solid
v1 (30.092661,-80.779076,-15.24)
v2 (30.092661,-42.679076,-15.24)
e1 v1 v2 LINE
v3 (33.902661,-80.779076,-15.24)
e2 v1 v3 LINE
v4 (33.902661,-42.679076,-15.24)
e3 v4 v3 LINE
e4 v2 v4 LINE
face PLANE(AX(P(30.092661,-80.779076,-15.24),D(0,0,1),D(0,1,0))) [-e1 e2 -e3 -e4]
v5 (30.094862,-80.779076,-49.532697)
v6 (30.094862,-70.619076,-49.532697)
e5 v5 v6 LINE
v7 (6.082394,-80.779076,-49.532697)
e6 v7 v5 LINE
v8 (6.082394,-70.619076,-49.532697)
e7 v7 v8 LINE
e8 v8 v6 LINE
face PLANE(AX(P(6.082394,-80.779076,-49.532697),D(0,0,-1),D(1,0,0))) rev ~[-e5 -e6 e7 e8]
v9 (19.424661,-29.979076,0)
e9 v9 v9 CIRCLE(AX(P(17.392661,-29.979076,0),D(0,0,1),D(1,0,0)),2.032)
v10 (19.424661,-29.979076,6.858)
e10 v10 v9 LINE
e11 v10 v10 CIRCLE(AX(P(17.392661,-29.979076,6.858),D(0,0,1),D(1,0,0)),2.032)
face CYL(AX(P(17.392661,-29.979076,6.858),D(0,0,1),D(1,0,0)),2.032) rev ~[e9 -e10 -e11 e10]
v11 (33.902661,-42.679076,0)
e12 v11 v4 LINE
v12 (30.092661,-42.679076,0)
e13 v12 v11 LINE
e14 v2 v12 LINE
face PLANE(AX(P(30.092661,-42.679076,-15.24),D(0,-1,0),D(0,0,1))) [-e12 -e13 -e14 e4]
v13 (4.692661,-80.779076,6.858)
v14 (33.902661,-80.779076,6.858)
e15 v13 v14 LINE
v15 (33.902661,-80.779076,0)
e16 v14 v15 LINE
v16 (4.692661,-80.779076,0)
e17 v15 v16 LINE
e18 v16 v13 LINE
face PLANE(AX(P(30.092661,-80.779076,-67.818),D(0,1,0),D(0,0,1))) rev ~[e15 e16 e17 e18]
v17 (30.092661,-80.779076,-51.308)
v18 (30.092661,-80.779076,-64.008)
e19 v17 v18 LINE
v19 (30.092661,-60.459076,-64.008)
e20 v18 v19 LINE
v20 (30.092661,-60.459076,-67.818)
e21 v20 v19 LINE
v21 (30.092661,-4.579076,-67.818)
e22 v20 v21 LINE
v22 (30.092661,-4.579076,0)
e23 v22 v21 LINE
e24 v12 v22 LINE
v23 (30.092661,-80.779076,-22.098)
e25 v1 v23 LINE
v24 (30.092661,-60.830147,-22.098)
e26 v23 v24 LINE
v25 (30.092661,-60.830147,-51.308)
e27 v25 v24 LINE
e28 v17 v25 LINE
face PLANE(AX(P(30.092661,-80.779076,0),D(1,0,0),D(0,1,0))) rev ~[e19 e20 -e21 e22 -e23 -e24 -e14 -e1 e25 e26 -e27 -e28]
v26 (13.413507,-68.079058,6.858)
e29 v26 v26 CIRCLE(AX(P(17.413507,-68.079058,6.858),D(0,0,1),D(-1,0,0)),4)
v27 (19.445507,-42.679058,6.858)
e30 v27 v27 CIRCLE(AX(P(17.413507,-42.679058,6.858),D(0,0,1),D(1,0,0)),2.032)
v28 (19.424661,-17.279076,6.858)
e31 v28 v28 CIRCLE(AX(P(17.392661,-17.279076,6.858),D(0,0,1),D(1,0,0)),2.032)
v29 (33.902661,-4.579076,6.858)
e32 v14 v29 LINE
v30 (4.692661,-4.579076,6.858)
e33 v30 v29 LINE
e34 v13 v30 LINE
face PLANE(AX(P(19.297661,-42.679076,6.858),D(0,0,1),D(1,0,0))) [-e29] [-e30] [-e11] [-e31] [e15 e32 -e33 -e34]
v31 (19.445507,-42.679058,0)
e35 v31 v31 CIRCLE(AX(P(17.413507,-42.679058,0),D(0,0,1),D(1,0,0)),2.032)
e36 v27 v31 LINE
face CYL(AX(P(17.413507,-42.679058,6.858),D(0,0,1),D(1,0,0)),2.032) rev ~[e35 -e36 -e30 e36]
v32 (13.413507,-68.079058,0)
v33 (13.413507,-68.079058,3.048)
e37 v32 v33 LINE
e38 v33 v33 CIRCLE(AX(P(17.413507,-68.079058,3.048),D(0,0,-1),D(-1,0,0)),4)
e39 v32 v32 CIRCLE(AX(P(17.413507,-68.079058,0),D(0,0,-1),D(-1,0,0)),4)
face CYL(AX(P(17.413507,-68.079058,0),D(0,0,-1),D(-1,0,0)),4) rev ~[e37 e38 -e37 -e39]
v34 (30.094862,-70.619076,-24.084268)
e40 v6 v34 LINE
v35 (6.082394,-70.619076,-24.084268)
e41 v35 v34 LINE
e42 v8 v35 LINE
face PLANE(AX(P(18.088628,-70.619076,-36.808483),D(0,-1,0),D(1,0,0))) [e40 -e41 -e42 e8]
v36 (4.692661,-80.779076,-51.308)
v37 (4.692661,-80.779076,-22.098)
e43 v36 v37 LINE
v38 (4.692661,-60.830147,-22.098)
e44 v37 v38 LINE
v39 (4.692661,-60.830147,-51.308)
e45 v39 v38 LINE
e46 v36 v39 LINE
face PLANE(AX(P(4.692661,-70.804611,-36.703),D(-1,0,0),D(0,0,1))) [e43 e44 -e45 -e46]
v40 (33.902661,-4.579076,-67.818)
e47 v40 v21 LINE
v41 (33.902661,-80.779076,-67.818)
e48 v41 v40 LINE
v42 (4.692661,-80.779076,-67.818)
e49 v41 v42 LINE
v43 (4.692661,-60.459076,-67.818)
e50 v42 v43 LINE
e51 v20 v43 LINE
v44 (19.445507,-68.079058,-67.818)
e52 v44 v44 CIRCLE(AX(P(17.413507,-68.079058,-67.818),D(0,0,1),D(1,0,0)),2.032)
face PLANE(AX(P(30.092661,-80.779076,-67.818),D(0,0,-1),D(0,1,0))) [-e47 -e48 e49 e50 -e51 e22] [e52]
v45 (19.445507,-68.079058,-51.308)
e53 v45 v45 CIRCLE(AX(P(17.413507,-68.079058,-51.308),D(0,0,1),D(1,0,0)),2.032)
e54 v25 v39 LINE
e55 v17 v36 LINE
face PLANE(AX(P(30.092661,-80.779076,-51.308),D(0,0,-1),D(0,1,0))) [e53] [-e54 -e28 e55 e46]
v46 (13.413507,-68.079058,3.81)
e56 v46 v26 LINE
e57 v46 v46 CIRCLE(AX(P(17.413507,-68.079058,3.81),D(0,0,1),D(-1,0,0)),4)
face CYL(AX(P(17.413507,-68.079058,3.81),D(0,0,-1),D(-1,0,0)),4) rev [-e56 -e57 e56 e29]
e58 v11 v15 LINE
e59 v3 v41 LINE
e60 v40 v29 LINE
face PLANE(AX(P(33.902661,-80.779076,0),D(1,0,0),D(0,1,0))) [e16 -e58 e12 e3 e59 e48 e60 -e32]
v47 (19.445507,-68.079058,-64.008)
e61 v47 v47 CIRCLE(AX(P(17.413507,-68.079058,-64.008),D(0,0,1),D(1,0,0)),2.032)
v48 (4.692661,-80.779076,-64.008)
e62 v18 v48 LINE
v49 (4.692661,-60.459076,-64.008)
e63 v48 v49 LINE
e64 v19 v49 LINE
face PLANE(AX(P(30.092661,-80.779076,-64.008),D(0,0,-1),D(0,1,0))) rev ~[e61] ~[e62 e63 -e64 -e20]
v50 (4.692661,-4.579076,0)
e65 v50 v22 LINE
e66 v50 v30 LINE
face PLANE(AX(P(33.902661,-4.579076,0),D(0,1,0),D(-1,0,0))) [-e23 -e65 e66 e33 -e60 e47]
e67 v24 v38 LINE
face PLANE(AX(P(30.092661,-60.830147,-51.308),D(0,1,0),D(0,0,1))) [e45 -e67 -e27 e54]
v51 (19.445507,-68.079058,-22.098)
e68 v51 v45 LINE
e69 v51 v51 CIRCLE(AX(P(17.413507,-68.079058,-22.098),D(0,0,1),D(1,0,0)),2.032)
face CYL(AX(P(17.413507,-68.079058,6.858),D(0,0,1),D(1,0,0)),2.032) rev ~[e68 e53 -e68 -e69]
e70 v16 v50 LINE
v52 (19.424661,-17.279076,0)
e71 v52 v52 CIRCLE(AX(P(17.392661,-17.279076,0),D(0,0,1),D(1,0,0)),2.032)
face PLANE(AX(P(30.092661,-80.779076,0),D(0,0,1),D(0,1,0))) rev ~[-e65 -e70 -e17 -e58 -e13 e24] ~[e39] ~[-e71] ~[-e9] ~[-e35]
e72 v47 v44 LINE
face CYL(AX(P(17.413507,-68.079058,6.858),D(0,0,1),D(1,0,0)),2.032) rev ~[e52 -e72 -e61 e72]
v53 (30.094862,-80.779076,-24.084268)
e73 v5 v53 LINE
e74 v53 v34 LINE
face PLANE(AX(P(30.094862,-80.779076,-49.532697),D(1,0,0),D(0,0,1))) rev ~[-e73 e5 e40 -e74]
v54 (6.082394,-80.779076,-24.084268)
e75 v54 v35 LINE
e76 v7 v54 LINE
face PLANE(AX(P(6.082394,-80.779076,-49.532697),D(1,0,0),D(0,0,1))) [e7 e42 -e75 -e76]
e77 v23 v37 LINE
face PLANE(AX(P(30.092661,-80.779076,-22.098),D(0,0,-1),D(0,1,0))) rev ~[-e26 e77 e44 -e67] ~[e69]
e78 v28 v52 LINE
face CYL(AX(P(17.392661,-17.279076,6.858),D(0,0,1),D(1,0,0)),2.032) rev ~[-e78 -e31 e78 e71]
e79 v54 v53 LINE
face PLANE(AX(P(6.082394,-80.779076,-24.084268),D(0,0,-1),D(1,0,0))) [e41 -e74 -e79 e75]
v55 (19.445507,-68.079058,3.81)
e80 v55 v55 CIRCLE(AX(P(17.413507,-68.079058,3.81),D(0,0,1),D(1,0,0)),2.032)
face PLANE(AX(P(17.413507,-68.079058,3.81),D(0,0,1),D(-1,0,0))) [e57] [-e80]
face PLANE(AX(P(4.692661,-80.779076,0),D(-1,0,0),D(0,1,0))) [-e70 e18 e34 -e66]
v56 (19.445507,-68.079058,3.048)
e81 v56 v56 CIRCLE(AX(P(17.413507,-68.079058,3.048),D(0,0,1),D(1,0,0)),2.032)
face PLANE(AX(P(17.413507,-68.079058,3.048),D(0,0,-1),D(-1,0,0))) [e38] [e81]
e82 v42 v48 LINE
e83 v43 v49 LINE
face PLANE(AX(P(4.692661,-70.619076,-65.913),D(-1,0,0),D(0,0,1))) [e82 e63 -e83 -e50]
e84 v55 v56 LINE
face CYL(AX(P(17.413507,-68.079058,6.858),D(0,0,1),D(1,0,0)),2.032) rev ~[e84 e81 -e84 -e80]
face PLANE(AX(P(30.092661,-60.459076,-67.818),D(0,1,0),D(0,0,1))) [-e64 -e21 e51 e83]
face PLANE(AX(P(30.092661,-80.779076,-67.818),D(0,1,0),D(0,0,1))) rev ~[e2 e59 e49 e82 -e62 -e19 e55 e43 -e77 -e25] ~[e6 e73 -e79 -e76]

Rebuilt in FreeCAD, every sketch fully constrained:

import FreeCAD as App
import Part
import Sketcher
from FreeCAD import Vector
Q = App.Units.Quantity

doc = App.newDocument("Part")
params = doc.addObject("Spreadsheet::Sheet", "Params")
for row, (alias, value) in enumerate([
    ("sketch1_height", "3 in"),
    ("sketch1_width", "1.15 in"),
    ("pad1_length", "0.27 in"),
    ("sketch2_diameter", "0.16 in"),
    ("pocket1_length", "1 in"),
    ("sketch3_height", "3 in"),
    ("sketch3_width", "0.15 in"),
    ("pad2_length", "2.67 in"),
    ("sketch4_width", "0.8 in"),
    ("sketch4_height", "0.15 in"),
    ("pad3_length", "1 in"),
    ("sketch5_height", "1.15 in"),
    ("pad4_length", "1 in"),
    ("sketch6_diameter", "0.16 in"),
    ("pocket3_length", "0.12 in"),
    ("pocket4_length", "0.12 in"),
    ("sketch9_width", "1.5 in"),
    ("sketch9_height", "0.6 in"),
    ("pocket6_length", "0.4 in"),
], start=1):
    params.set(f"A{row}", alias)
    params.set(f"B{row}", "=" + value)
    params.setAlias(f"B{row}", alias)

body = doc.addObject("PartDesign::Body", "Body")

sketch1 = body.newObject("Sketcher::SketchObject", "Sketch")
sketch1.AttachmentSupport = (doc.getObject("XY_Plane"), [""])
sketch1.MapMode = "FlatFace"
sketch1.addGeometry(Part.LineSegment(Vector(5, -5, 0), Vector(5, -81, 0)), False)
sketch1.addGeometry(Part.LineSegment(Vector(5, -81, 0), Vector(34, -81, 0)), False)
sketch1.addGeometry(Part.LineSegment(Vector(34, -81, 0), Vector(34, -5, 0)), False)
sketch1.addGeometry(Part.LineSegment(Vector(34, -5, 0), Vector(5, -5, 0)), False)
sketch1.addConstraint(Sketcher.Constraint("Coincident", 0, 2, 1, 1))
sketch1.addConstraint(Sketcher.Constraint("Coincident", 1, 2, 2, 1))
sketch1.addConstraint(Sketcher.Constraint("Coincident", 2, 2, 3, 1))
sketch1.addConstraint(Sketcher.Constraint("Coincident", 3, 2, 0, 1))
sketch1.addConstraint(Sketcher.Constraint("Vertical", 0))
sketch1.addConstraint(Sketcher.Constraint("Horizontal", 1))
sketch1.addConstraint(Sketcher.Constraint("Vertical", 2))
sketch1.addConstraint(Sketcher.Constraint("Horizontal", 3))
sketch1.addConstraint(Sketcher.Constraint("DistanceY", 0, 2, 0, 1, Q("3 in")))
sketch1.addConstraint(Sketcher.Constraint("DistanceX", 1, 1, 1, 2, Q("1.15 in")))
sketch1.addConstraint(Sketcher.Constraint("DistanceX", -1, 1, 0, 2, 4.692661))
sketch1.addConstraint(Sketcher.Constraint("DistanceY", 0, 2, -1, 1, 80.779076))
sketch1.setExpression("Constraints[8]", "Params.sketch1_height")
sketch1.setExpression("Constraints[9]", "Params.sketch1_width")
pad1 = body.newObject("PartDesign::Pad", "Pad")
pad1.Profile = sketch1
pad1.setExpression("Length", "Params.pad1_length")

sketch2 = body.newObject("Sketcher::SketchObject", "Sketch001")
sketch2.AttachmentSupport = (doc.getObject("XY_Plane"), [""])
sketch2.MapMode = "FlatFace"
sketch2.AttachmentOffset = App.Placement(Vector(0, 0, 0.27 * 25.4), App.Rotation())
sketch2.addGeometry(Part.Circle(Vector(17.4, -42.7, 0), Vector(0, 0, 1), 2), False)
sketch2.addGeometry(Part.Circle(Vector(17.4, -30, 0), Vector(0, 0, 1), 2), False)
sketch2.addGeometry(Part.Circle(Vector(17.4, -17.3, 0), Vector(0, 0, 1), 2), False)
sketch2.addConstraint(Sketcher.Constraint("Equal", 0, 1))
sketch2.addConstraint(Sketcher.Constraint("Equal", 1, 2))
sketch2.addConstraint(Sketcher.Constraint("Vertical", 1, 3, 2, 3))
sketch2.addConstraint(Sketcher.Constraint("Diameter", 0, Q("0.16 in")))
sketch2.addConstraint(Sketcher.Constraint("DistanceY", 1, 3, 2, 3, Q("0.5 in")))
sketch2.addConstraint(Sketcher.Constraint("DistanceY", 0, 3, -1, 1, 42.679058))
sketch2.addConstraint(Sketcher.Constraint("DistanceX", -1, 1, 1, 3, 17.392661))
sketch2.addConstraint(Sketcher.Constraint("DistanceX", -1, 1, 0, 3, 17.413507))
sketch2.addConstraint(Sketcher.Constraint("DistanceY", 1, 3, -1, 1, 29.979076))
sketch2.setExpression("Constraints[3]", "Params.sketch2_diameter")
pocket1 = body.newObject("PartDesign::Pocket", "Pocket")
pocket1.Profile = sketch2
pocket1.setExpression("Length", "Params.pocket1_length")

sketch3 = body.newObject("Sketcher::SketchObject", "Sketch002")
sketch3.AttachmentSupport = (doc.getObject("XY_Plane"), [""])
sketch3.MapMode = "FlatFace"
sketch3.addGeometry(Part.LineSegment(Vector(33.9, -4.6, 0), Vector(33.9, -80.8, 0)), False)
sketch3.addGeometry(Part.LineSegment(Vector(33.9, -80.8, 0), Vector(30.1, -80.8, 0)), False)
sketch3.addGeometry(Part.LineSegment(Vector(30.1, -80.8, 0), Vector(30.1, -4.6, 0)), False)
sketch3.addGeometry(Part.LineSegment(Vector(30.1, -4.6, 0), Vector(33.9, -4.6, 0)), False)
sketch3.addConstraint(Sketcher.Constraint("Coincident", 0, 2, 1, 1))
sketch3.addConstraint(Sketcher.Constraint("Coincident", 1, 2, 2, 1))
sketch3.addConstraint(Sketcher.Constraint("Coincident", 2, 2, 3, 1))
sketch3.addConstraint(Sketcher.Constraint("Coincident", 3, 2, 0, 1))
sketch3.addConstraint(Sketcher.Constraint("Vertical", 0))
sketch3.addConstraint(Sketcher.Constraint("Horizontal", 1))
sketch3.addConstraint(Sketcher.Constraint("Vertical", 2))
sketch3.addConstraint(Sketcher.Constraint("Horizontal", 3))
sketch3.addConstraint(Sketcher.Constraint("DistanceY", 0, 2, 0, 1, Q("3 in")))
sketch3.addConstraint(Sketcher.Constraint("DistanceX", 1, 2, 1, 1, Q("0.15 in")))
sketch3.addConstraint(Sketcher.Constraint("DistanceX", -1, 1, 0, 2, 33.902661))
sketch3.addConstraint(Sketcher.Constraint("DistanceY", 0, 2, -1, 1, 80.779076))
sketch3.setExpression("Constraints[8]", "Params.sketch3_height")
sketch3.setExpression("Constraints[9]", "Params.sketch3_width")
pad2 = body.newObject("PartDesign::Pad", "Pad001")
pad2.Profile = sketch3
pad2.setExpression("Length", "Params.pad2_length")
pad2.Reversed = True

sketch4 = body.newObject("Sketcher::SketchObject", "Sketch003")
sketch4.AttachmentSupport = (doc.getObject("YZ_Plane"), [""])
sketch4.MapMode = "FlatFace"
sketch4.AttachmentOffset = App.Placement(Vector(0, 0, 30.092661), App.Rotation())
sketch4.addGeometry(Part.LineSegment(Vector(-60.5, -67.8, 0), Vector(-80.8, -67.8, 0)), False)
sketch4.addGeometry(Part.LineSegment(Vector(-80.8, -67.8, 0), Vector(-80.8, -64, 0)), False)
sketch4.addGeometry(Part.LineSegment(Vector(-80.8, -64, 0), Vector(-60.5, -64, 0)), False)
sketch4.addGeometry(Part.LineSegment(Vector(-60.5, -64, 0), Vector(-60.5, -67.8, 0)), False)
sketch4.addConstraint(Sketcher.Constraint("Coincident", 0, 2, 1, 1))
sketch4.addConstraint(Sketcher.Constraint("Coincident", 1, 2, 2, 1))
sketch4.addConstraint(Sketcher.Constraint("Coincident", 2, 2, 3, 1))
sketch4.addConstraint(Sketcher.Constraint("Coincident", 3, 2, 0, 1))
sketch4.addConstraint(Sketcher.Constraint("Horizontal", 0))
sketch4.addConstraint(Sketcher.Constraint("Vertical", 1))
sketch4.addConstraint(Sketcher.Constraint("Horizontal", 2))
sketch4.addConstraint(Sketcher.Constraint("Vertical", 3))
sketch4.addConstraint(Sketcher.Constraint("DistanceX", 0, 2, 0, 1, Q("0.8 in")))
sketch4.addConstraint(Sketcher.Constraint("DistanceY", 1, 1, 1, 2, Q("0.15 in")))
sketch4.addConstraint(Sketcher.Constraint("DistanceY", 0, 2, -1, 1, Q("2.67 in")))
sketch4.addConstraint(Sketcher.Constraint("DistanceX", 0, 2, -1, 1, 80.779076))
sketch4.setExpression("Constraints[8]", "Params.sketch4_width")
sketch4.setExpression("Constraints[9]", "Params.sketch4_height")
pad3 = body.newObject("PartDesign::Pad", "Pad002")
pad3.Profile = sketch4
pad3.setExpression("Length", "Params.pad3_length")
pad3.Reversed = True

sketch5 = body.newObject("Sketcher::SketchObject", "Sketch004")
sketch5.AttachmentSupport = (doc.getObject("YZ_Plane"), [""])
sketch5.MapMode = "FlatFace"
sketch5.AttachmentOffset = App.Placement(Vector(0, 0, 30.092661), App.Rotation())
sketch5.addGeometry(Part.LineSegment(Vector(-61, -51, 0), Vector(-81, -51, 0)), False)
sketch5.addGeometry(Part.LineSegment(Vector(-81, -51, 0), Vector(-81, -22, 0)), False)
sketch5.addGeometry(Part.LineSegment(Vector(-81, -22, 0), Vector(-61, -22, 0)), False)
sketch5.addGeometry(Part.LineSegment(Vector(-61, -22, 0), Vector(-61, -51, 0)), False)
sketch5.addConstraint(Sketcher.Constraint("Coincident", 0, 2, 1, 1))
sketch5.addConstraint(Sketcher.Constraint("Coincident", 1, 2, 2, 1))
sketch5.addConstraint(Sketcher.Constraint("Coincident", 2, 2, 3, 1))
sketch5.addConstraint(Sketcher.Constraint("Coincident", 3, 2, 0, 1))
sketch5.addConstraint(Sketcher.Constraint("Horizontal", 0))
sketch5.addConstraint(Sketcher.Constraint("Vertical", 1))
sketch5.addConstraint(Sketcher.Constraint("Horizontal", 2))
sketch5.addConstraint(Sketcher.Constraint("Vertical", 3))
sketch5.addConstraint(Sketcher.Constraint("DistanceY", 1, 1, 1, 2, Q("1.15 in")))
sketch5.addConstraint(Sketcher.Constraint("DistanceY", 0, 2, -1, 1, Q("2.02 in")))
sketch5.addConstraint(Sketcher.Constraint("DistanceX", 0, 2, 0, 1, 19.948928))
sketch5.addConstraint(Sketcher.Constraint("DistanceX", 0, 2, -1, 1, 80.779076))
sketch5.setExpression("Constraints[8]", "Params.sketch5_height")
pad4 = body.newObject("PartDesign::Pad", "Pad003")
pad4.Profile = sketch5
pad4.setExpression("Length", "Params.pad4_length")
pad4.Reversed = True

sketch6 = body.newObject("Sketcher::SketchObject", "Sketch005")
sketch6.AttachmentSupport = (doc.getObject("XY_Plane"), [""])
sketch6.MapMode = "FlatFace"
sketch6.AttachmentOffset = App.Placement(Vector(0, 0, 0.27 * 25.4), App.Rotation())
sketch6.addGeometry(Part.Circle(Vector(17.4, -68.1, 0), Vector(0, 0, 1), 2), False)
sketch6.addConstraint(Sketcher.Constraint("Diameter", 0, Q("0.16 in")))
sketch6.addConstraint(Sketcher.Constraint("DistanceY", 0, 3, -1, 1, 68.079058))
sketch6.addConstraint(Sketcher.Constraint("DistanceX", -1, 1, 0, 3, 17.413507))
sketch6.setExpression("Constraints[0]", "Params.sketch6_diameter")
pocket2 = body.newObject("PartDesign::Pocket", "Pocket001")
pocket2.Profile = sketch6
pocket2.Type = "ThroughAll"

sketch7 = body.newObject("Sketcher::SketchObject", "Sketch006")
sketch7.AttachmentSupport = (doc.getObject("XY_Plane"), [""])
sketch7.MapMode = "FlatFace"
sketch7.addGeometry(Part.Circle(Vector(17.4, -68.1, 0), Vector(0, 0, 1), 4), False)
sketch7.addGeometry(Part.Circle(Vector(17.4, -68.1, 0), Vector(0, 0, 1), 2), False)
sketch7.addConstraint(Sketcher.Constraint("Coincident", 1, 3, 0, 3))
sketch7.addConstraint(Sketcher.Constraint("Diameter", 0, 8.0))
sketch7.addConstraint(Sketcher.Constraint("Diameter", 1, 4.0))
sketch7.addConstraint(Sketcher.Constraint("DistanceY", 0, 3, -1, 1, 68.079058))
sketch7.addConstraint(Sketcher.Constraint("DistanceX", -1, 1, 0, 3, 17.413507))
pocket3 = body.newObject("PartDesign::Pocket", "Pocket002")
pocket3.Profile = sketch7
pocket3.setExpression("Length", "Params.pocket3_length")
pocket3.Reversed = True

sketch8 = body.newObject("Sketcher::SketchObject", "Sketch007")
sketch8.AttachmentSupport = (doc.getObject("XY_Plane"), [""])
sketch8.MapMode = "FlatFace"
sketch8.AttachmentOffset = App.Placement(Vector(0, 0, 0.15 * 25.4), App.Rotation())
sketch8.addGeometry(Part.Circle(Vector(17.4, -68.1, 0), Vector(0, 0, 1), 4), False)
sketch8.addConstraint(Sketcher.Constraint("Diameter", 0, 8.0))
sketch8.addConstraint(Sketcher.Constraint("DistanceY", 0, 3, -1, 1, 68.079058))
sketch8.addConstraint(Sketcher.Constraint("DistanceX", -1, 1, 0, 3, 17.413507))
pocket4 = body.newObject("PartDesign::Pocket", "Pocket003")
pocket4.Profile = sketch8
pocket4.setExpression("Length", "Params.pocket4_length")
pocket4.Reversed = True

sketch9 = body.newObject("Sketcher::SketchObject", "Sketch008")
sketch9.AttachmentSupport = (doc.getObject("YZ_Plane"), [""])
sketch9.MapMode = "FlatFace"
sketch9.AttachmentOffset = App.Placement(Vector(0, 0, 30.092661), App.Rotation())
sketch9.addGeometry(Part.LineSegment(Vector(-43, -15, 0), Vector(-81, -15, 0)), False)
sketch9.addGeometry(Part.LineSegment(Vector(-81, -15, 0), Vector(-81, 0, 0)), False)
sketch9.addGeometry(Part.LineSegment(Vector(-81, 0, 0), Vector(-43, 0, 0)), False)
sketch9.addGeometry(Part.LineSegment(Vector(-43, 0, 0), Vector(-43, -15, 0)), False)
sketch9.addConstraint(Sketcher.Constraint("Coincident", 0, 2, 1, 1))
sketch9.addConstraint(Sketcher.Constraint("Coincident", 1, 2, 2, 1))
sketch9.addConstraint(Sketcher.Constraint("Coincident", 2, 2, 3, 1))
sketch9.addConstraint(Sketcher.Constraint("Coincident", 3, 2, 0, 1))
sketch9.addConstraint(Sketcher.Constraint("Horizontal", 0))
sketch9.addConstraint(Sketcher.Constraint("Vertical", 1))
sketch9.addConstraint(Sketcher.Constraint("Horizontal", 2))
sketch9.addConstraint(Sketcher.Constraint("Vertical", 3))
sketch9.addConstraint(Sketcher.Constraint("PointOnObject", 1, 2, -1))
sketch9.addConstraint(Sketcher.Constraint("DistanceX", 0, 2, 0, 1, Q("1.5 in")))
sketch9.addConstraint(Sketcher.Constraint("DistanceY", 1, 1, 1, 2, Q("0.6 in")))
sketch9.addConstraint(Sketcher.Constraint("DistanceX", 0, 2, -1, 1, 80.779076))
sketch9.setExpression("Constraints[9]", "Params.sketch9_width")
sketch9.setExpression("Constraints[10]", "Params.sketch9_height")
pocket5 = body.newObject("PartDesign::Pocket", "Pocket004")
pocket5.Profile = sketch9
pocket5.Type = "ThroughAll"
pocket5.Reversed = True

sketch10 = body.newObject("Sketcher::SketchObject", "Sketch009")
sketch10.AttachmentSupport = (doc.getObject("XZ_Plane"), [""])
sketch10.MapMode = "FlatFace"
sketch10.AttachmentOffset = App.Placement(Vector(0, 0, 80.779076), App.Rotation())
sketch10.addGeometry(Part.LineSegment(Vector(6, -24, 0), Vector(6, -50, 0)), False)
sketch10.addGeometry(Part.LineSegment(Vector(6, -50, 0), Vector(30, -50, 0)), False)
sketch10.addGeometry(Part.LineSegment(Vector(30, -50, 0), Vector(30, -24, 0)), False)
sketch10.addGeometry(Part.LineSegment(Vector(30, -24, 0), Vector(6, -24, 0)), False)
sketch10.addConstraint(Sketcher.Constraint("Coincident", 0, 2, 1, 1))
sketch10.addConstraint(Sketcher.Constraint("Coincident", 1, 2, 2, 1))
sketch10.addConstraint(Sketcher.Constraint("Coincident", 2, 2, 3, 1))
sketch10.addConstraint(Sketcher.Constraint("Coincident", 3, 2, 0, 1))
sketch10.addConstraint(Sketcher.Constraint("Vertical", 0))
sketch10.addConstraint(Sketcher.Constraint("Horizontal", 1))
sketch10.addConstraint(Sketcher.Constraint("Vertical", 2))
sketch10.addConstraint(Sketcher.Constraint("Horizontal", 3))
sketch10.addConstraint(Sketcher.Constraint("DistanceY", 0, 2, 0, 1, 25.448429))
sketch10.addConstraint(Sketcher.Constraint("DistanceX", 1, 1, 1, 2, 24.012468))
sketch10.addConstraint(Sketcher.Constraint("DistanceX", -1, 1, 1, 2, 30.094862))
sketch10.addConstraint(Sketcher.Constraint("DistanceY", 0, 2, -1, 1, 49.532697))
pocket6 = body.newObject("PartDesign::Pocket", "Pocket005")
pocket6.Profile = sketch10
pocket6.setExpression("Length", "Params.pocket6_length")

doc.recompute()
